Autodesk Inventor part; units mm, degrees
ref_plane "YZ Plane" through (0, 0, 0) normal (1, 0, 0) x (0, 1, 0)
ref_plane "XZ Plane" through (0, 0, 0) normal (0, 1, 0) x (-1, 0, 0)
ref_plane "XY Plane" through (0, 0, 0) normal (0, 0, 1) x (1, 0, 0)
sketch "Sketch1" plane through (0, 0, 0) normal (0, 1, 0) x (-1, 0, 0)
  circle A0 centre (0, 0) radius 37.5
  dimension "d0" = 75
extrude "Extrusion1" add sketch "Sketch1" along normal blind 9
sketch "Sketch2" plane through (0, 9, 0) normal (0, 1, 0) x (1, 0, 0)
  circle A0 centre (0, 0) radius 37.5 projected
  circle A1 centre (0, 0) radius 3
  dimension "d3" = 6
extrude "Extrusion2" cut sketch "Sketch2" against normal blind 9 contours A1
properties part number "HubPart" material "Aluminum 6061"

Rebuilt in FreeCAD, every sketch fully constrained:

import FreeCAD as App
import Part
import Sketcher

doc = App.newDocument("Part")
params = doc.addObject("Spreadsheet::Sheet", "Params")
for row, (alias, value) in enumerate([
    ("sketch1_diameter", "75 mm"),
    ("pad1_length", "9 mm"),
    ("sketch2_diameter", "6 mm"),
    ("pocket1_length", "9 mm"),
], start=1):
    params.set(f"A{row}", alias)
    params.set(f"B{row}", "=" + value)
    params.setAlias(f"B{row}", alias)

body = doc.addObject("PartDesign::Body", "Body")

# Sketch on XZ plane
sketch1 = body.newObject("Sketcher::SketchObject", "Sketch")
sketch1.AttachmentSupport = (doc.getObject("XZ_Plane"), [""])
sketch1.MapMode = "FlatFace"
sketch1.addGeometry(Part.Circle(App.Vector(0, 0, 0), App.Vector(0, 0, 1), 38), False)
sketch1.addConstraint([
    Sketcher.Constraint("Coincident", 0, 3, -1, 1),
    Sketcher.Constraint("Diameter", 0, 75.0),
])
sketch1.setExpression("Constraints[1]", "Params.sketch1_diameter")
pad1 = body.newObject("PartDesign::Pad", "Pad")
pad1.Profile = sketch1
pad1.setExpression("Length", "Params.pad1_length")
pad1.Reversed = True

# Sketch on XZ plane
sketch2 = body.newObject("Sketcher::SketchObject", "Sketch001")
sketch2.AttachmentSupport = (doc.getObject("XZ_Plane"), [""])
sketch2.MapMode = "FlatFace"
sketch2.AttachmentOffset = App.Placement(App.Vector(0, 0, -9), App.Rotation())
sketch2.addGeometry(Part.Circle(App.Vector(0, 0, 0), App.Vector(0, 0, 1), 3), False)
sketch2.addConstraint([
    Sketcher.Constraint("Coincident", 0, 3, -1, 1),
    Sketcher.Constraint("Diameter", 0, 6.0),
])
sketch2.setExpression("Constraints[1]", "Params.sketch2_diameter")
pocket1 = body.newObject("PartDesign::Pocket", "Pocket")
pocket1.Profile = sketch2
pocket1.setExpression("Length", "Params.pocket1_length")
pocket1.Reversed = True

doc.recompute()
